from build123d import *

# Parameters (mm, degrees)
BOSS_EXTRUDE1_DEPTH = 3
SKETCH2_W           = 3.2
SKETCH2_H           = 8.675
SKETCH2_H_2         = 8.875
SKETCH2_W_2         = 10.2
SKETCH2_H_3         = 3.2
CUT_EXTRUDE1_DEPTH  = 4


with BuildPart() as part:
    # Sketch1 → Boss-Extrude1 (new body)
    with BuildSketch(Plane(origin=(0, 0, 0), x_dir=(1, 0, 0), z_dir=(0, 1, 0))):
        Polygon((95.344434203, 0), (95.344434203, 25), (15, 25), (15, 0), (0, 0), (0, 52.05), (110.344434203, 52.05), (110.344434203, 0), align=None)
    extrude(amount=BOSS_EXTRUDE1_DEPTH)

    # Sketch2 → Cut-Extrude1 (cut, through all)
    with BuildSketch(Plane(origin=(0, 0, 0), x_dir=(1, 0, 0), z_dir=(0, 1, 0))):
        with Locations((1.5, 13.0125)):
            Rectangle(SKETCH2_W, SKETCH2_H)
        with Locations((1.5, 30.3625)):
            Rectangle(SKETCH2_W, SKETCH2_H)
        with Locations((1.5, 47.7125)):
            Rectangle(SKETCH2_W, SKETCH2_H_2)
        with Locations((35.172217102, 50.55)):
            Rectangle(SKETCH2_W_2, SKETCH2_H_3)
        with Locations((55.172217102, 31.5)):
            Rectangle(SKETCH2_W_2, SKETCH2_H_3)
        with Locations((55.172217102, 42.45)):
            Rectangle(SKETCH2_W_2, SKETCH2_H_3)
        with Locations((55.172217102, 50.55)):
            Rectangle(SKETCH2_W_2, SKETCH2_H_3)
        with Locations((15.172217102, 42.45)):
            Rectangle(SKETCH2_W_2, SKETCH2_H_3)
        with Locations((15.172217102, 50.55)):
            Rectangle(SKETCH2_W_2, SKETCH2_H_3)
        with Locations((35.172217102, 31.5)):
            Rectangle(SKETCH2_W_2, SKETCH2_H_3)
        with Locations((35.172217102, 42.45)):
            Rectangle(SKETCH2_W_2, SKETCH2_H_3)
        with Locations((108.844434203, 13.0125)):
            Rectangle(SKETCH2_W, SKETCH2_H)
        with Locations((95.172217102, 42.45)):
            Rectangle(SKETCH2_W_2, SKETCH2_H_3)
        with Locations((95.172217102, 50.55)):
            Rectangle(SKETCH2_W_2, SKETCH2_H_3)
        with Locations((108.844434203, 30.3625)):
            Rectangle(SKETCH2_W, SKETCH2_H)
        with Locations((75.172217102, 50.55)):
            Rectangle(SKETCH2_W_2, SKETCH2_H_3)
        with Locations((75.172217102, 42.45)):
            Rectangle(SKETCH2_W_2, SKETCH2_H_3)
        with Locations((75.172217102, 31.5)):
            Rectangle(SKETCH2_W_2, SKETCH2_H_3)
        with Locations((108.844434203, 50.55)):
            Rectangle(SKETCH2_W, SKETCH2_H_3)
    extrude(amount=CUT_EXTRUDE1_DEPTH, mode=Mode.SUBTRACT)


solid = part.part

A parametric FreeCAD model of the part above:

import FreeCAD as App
import Part
import Sketcher

V = App.Vector
Q = App.Units.Quantity

doc = App.newDocument("Part")
body = doc.addObject("PartDesign::Body", "Body")

# Sketch on XZ plane
sketch1 = body.newObject("Sketcher::SketchObject", "Sketch")
sketch1.AttachmentSupport = (doc.getObject("XZ_Plane"), [""])
sketch1.MapMode = "FlatFace"
sketch1.addGeometry([
    Part.LineSegment(V(95, -25, 0), V(95, 0, 0)),  # 0
    Part.LineSegment(V(95, 0, 0), V(110, 0, 0)),  # 1
    Part.LineSegment(V(110, 0, 0), V(110, -52, 0)),  # 2
    Part.LineSegment(V(110, -52, 0), V(0, -52, 0)),  # 3
    Part.LineSegment(V(0, -52, 0), V(0, 0, 0)),  # 4
    Part.LineSegment(V(0, 0, 0), V(15, 0, 0)),  # 5
    Part.LineSegment(V(15, 0, 0), V(15, -25, 0)),  # 6
    Part.LineSegment(V(15, -25, 0), V(95, -25, 0)),  # 7
], False)
sketch1.addConstraint([
    Sketcher.Constraint("Coincident", 0, 2, 1, 1),
    Sketcher.Constraint("Coincident", 1, 2, 2, 1),
    Sketcher.Constraint("Coincident", 2, 2, 3, 1),
    Sketcher.Constraint("Coincident", 3, 2, 4, 1),
    Sketcher.Constraint("Coincident", 4, 2, 5, 1),
    Sketcher.Constraint("Coincident", 5, 2, 6, 1),
    Sketcher.Constraint("Coincident", 6, 2, 7, 1),
    Sketcher.Constraint("Coincident", 7, 2, 0, 1),
    Sketcher.Constraint("Vertical", 0),
    Sketcher.Constraint("Horizontal", 1),
    Sketcher.Constraint("Vertical", 2),
    Sketcher.Constraint("Horizontal", 3),
    Sketcher.Constraint("Vertical", 4),
    Sketcher.Constraint("Horizontal", 5),
    Sketcher.Constraint("Vertical", 6),
    Sketcher.Constraint("Horizontal", 7),
    Sketcher.Constraint("Coincident", 4, 2, -1, 1),
    Sketcher.Constraint("PointOnObject", 0, 2, -1),
    Sketcher.Constraint("Equal", 1, 5),
    Sketcher.Constraint("DistanceX", 1, 1, 1, 2, Q("15 mm")),
    Sketcher.Constraint("DistanceY", 0, 1, 0, 2, Q("25 mm")),
    Sketcher.Constraint("DistanceY", 2, 2, 2, 1, Q("52.05 mm")),
    Sketcher.Constraint("DistanceX", 3, 2, 3, 1, Q("110.344434 mm")),
])
pad1 = body.newObject("PartDesign::Pad", "Pad")
pad1.Profile = sketch1
pad1.Length = 3
pad1.Reversed = True

# Sketch on XZ plane
sketch2 = body.newObject("Sketcher::SketchObject", "Sketch001")
sketch2.AttachmentSupport = (doc.getObject("XZ_Plane"), [""])
sketch2.MapMode = "FlatFace"
sketch2.addGeometry([
    Part.LineSegment(V(-0.1, -17.4, 0), V(-0.1, -8.7, 0)),  # 0
    Part.LineSegment(V(-0.1, -8.7, 0), V(3.1, -8.7, 0)),  # 1
    Part.LineSegment(V(3.1, -8.7, 0), V(3.1, -17.4, 0)),  # 2
    Part.LineSegment(V(3.1, -17.4, 0), V(-0.1, -17.4, 0)),  # 3
    Part.LineSegment(V(-0.1, -34.7, 0), V(-0.1, -26, 0)),  # 4
    Part.LineSegment(V(-0.1, -26, 0), V(3.1, -26, 0)),  # 5
    Part.LineSegment(V(3.1, -26, 0), V(3.1, -34.7, 0)),  # 6
    Part.LineSegment(V(3.1, -34.7, 0), V(-0.1, -34.7, 0)),  # 7
    Part.LineSegment(V(-0.1, -52.1, 0), V(-0.1, -43.3, 0)),  # 8
    Part.LineSegment(V(-0.1, -43.3, 0), V(3.1, -43.3, 0)),  # 9
    Part.LineSegment(V(3.1, -43.3, 0), V(3.1, -52.1, 0)),  # 10
    Part.LineSegment(V(3.1, -52.1, 0), V(-0.1, -52.1, 0)),  # 11
    Part.LineSegment(V(30.1, -52.1, 0), V(30.1, -49, 0)),  # 12
    Part.LineSegment(V(30.1, -49, 0), V(40.3, -49, 0)),  # 13
    Part.LineSegment(V(40.3, -49, 0), V(40.3, -52.1, 0)),  # 14
    Part.LineSegment(V(40.3, -52.1, 0), V(30.1, -52.1, 0)),  # 15
    Part.LineSegment(V(50.1, -33.1, 0), V(50.1, -29.9, 0)),  # 16
    Part.LineSegment(V(50.1, -29.9, 0), V(60.3, -29.9, 0)),  # 17
    Part.LineSegment(V(60.3, -29.9, 0), V(60.3, -33.1, 0)),  # 18
    Part.LineSegment(V(60.3, -33.1, 0), V(50.1, -33.1, 0)),  # 19
    Part.LineSegment(V(50.1, -44, 0), V(50.1, -40.9, 0)),  # 20
    Part.LineSegment(V(50.1, -40.9, 0), V(60.3, -40.9, 0)),  # 21
    Part.LineSegment(V(60.3, -40.9, 0), V(60.3, -44, 0)),  # 22
    Part.LineSegment(V(60.3, -44, 0), V(50.1, -44, 0)),  # 23
    Part.LineSegment(V(50.1, -52.1, 0), V(50.1, -49, 0)),  # 24
    Part.LineSegment(V(50.1, -49, 0), V(60.3, -49, 0)),  # 25
    Part.LineSegment(V(60.3, -49, 0), V(60.3, -52.1, 0)),  # 26
    Part.LineSegment(V(60.3, -52.1, 0), V(50.1, -52.1, 0)),  # 27
    Part.LineSegment(V(10.1, -44, 0), V(10.1, -40.9, 0)),  # 28
    Part.LineSegment(V(10.1, -40.9, 0), V(20.3, -40.9, 0)),  # 29
    Part.LineSegment(V(20.3, -40.9, 0), V(20.3, -44, 0)),  # 30
    Part.LineSegment(V(20.3, -44, 0), V(10.1, -44, 0)),  # 31
    Part.LineSegment(V(10.1, -52.1, 0), V(10.1, -49, 0)),  # 32
    Part.LineSegment(V(10.1, -49, 0), V(20.3, -49, 0)),  # 33
    Part.LineSegment(V(20.3, -49, 0), V(20.3, -52.1, 0)),  # 34
    Part.LineSegment(V(20.3, -52.1, 0), V(10.1, -52.1, 0)),  # 35
    Part.LineSegment(V(30.1, -33.1, 0), V(30.1, -29.9, 0)),  # 36
    Part.LineSegment(V(30.1, -29.9, 0), V(40.3, -29.9, 0)),  # 37
    Part.LineSegment(V(40.3, -29.9, 0), V(40.3, -33.1, 0)),  # 38
    Part.LineSegment(V(40.3, -33.1, 0), V(30.1, -33.1, 0)),  # 39
    Part.LineSegment(V(30.1, -44, 0), V(30.1, -40.9, 0)),  # 40
    Part.LineSegment(V(30.1, -40.9, 0), V(40.3, -40.9, 0)),  # 41
    Part.LineSegment(V(40.3, -40.9, 0), V(40.3, -44, 0)),  # 42
    Part.LineSegment(V(40.3, -44, 0), V(30.1, -44, 0)),  # 43
    Part.LineSegment(V(107.2, -17.4, 0), V(107.2, -8.7, 0)),  # 44
    Part.LineSegment(V(107.2, -8.7, 0), V(110.4, -8.7, 0)),  # 45
    Part.LineSegment(V(110.4, -8.7, 0), V(110.4, -17.4, 0)),  # 46
    Part.LineSegment(V(110.4, -17.4, 0), V(107.2, -17.4, 0)),  # 47
    Part.LineSegment(V(90.1, -44, 0), V(90.1, -40.9, 0)),  # 48
    Part.LineSegment(V(90.1, -40.9, 0), V(100.3, -40.9, 0)),  # 49
    Part.LineSegment(V(100.3, -40.9, 0), V(100.3, -44, 0)),  # 50
    Part.LineSegment(V(100.3, -44, 0), V(90.1, -44, 0)),  # 51
    Part.LineSegment(V(90.1, -52.1, 0), V(90.1, -49, 0)),  # 52
    Part.LineSegment(V(90.1, -49, 0), V(100.3, -49, 0)),  # 53
    Part.LineSegment(V(100.3, -49, 0), V(100.3, -52.1, 0)),  # 54
    Part.LineSegment(V(100.3, -52.1, 0), V(90.1, -52.1, 0)),  # 55
    Part.LineSegment(V(107.2, -34.7, 0), V(107.2, -26, 0)),  # 56
    Part.LineSegment(V(107.2, -26, 0), V(110.4, -26, 0)),  # 57
    Part.LineSegment(V(110.4, -26, 0), V(110.4, -34.7, 0)),  # 58
    Part.LineSegment(V(110.4, -34.7, 0), V(107.2, -34.7, 0)),  # 59
    Part.LineSegment(V(70.1, -52.1, 0), V(70.1, -49, 0)),  # 60
    Part.LineSegment(V(70.1, -49, 0), V(80.3, -49, 0)),  # 61
    Part.LineSegment(V(80.3, -49, 0), V(80.3, -52.1, 0)),  # 62
    Part.LineSegment(V(80.3, -52.1, 0), V(70.1, -52.1, 0)),  # 63
    Part.LineSegment(V(70.1, -44, 0), V(70.1, -40.9, 0)),  # 64
    Part.LineSegment(V(70.1, -40.9, 0), V(80.3, -40.9, 0)),  # 65
    Part.LineSegment(V(80.3, -40.9, 0), V(80.3, -44, 0)),  # 66
    Part.LineSegment(V(80.3, -44, 0), V(70.1, -44, 0)),  # 67
    Part.LineSegment(V(70.1, -33.1, 0), V(70.1, -29.9, 0)),  # 68
    Part.LineSegment(V(70.1, -29.9, 0), V(80.3, -29.9, 0)),  # 69
    Part.LineSegment(V(80.3, -29.9, 0), V(80.3, -33.1, 0)),  # 70
    Part.LineSegment(V(80.3, -33.1, 0), V(70.1, -33.1, 0)),  # 71
    Part.LineSegment(V(107.2, -52.1, 0), V(107.2, -49, 0)),  # 72
    Part.LineSegment(V(107.2, -49, 0), V(110.4, -49, 0)),  # 73
    Part.LineSegment(V(110.4, -49, 0), V(110.4, -52.1, 0)),  # 74
    Part.LineSegment(V(110.4, -52.1, 0), V(107.2, -52.1, 0)),  # 75
], False)
sketch2.addConstraint([
    Sketcher.Constraint("Coincident", 0, 2, 1, 1),
    Sketcher.Constraint("Coincident", 1, 2, 2, 1),
    Sketcher.Constraint("Coincident", 2, 2, 3, 1),
    Sketcher.Constraint("Coincident", 3, 2, 0, 1),
    Sketcher.Constraint("Coincident", 4, 2, 5, 1),
    Sketcher.Constraint("Coincident", 5, 2, 6, 1),
    Sketcher.Constraint("Coincident", 6, 2, 7, 1),
    Sketcher.Constraint("Coincident", 7, 2, 4, 1),
    Sketcher.Constraint("Coincident", 8, 2, 9, 1),
    Sketcher.Constraint("Coincident", 9, 2, 10, 1),
    Sketcher.Constraint("Coincident", 10, 2, 11, 1),
    Sketcher.Constraint("Coincident", 11, 2, 8, 1),
    Sketcher.Constraint("Coincident", 12, 2, 13, 1),
    Sketcher.Constraint("Coincident", 13, 2, 14, 1),
    Sketcher.Constraint("Coincident", 14, 2, 15, 1),
    Sketcher.Constraint("Coincident", 15, 2, 12, 1),
    Sketcher.Constraint("Coincident", 16, 2, 17, 1),
    Sketcher.Constraint("Coincident", 17, 2, 18, 1),
    Sketcher.Constraint("Coincident", 18, 2, 19, 1),
    Sketcher.Constraint("Coincident", 19, 2, 16, 1),
    Sketcher.Constraint("Coincident", 20, 2, 21, 1),
    Sketcher.Constraint("Coincident", 21, 2, 22, 1),
    Sketcher.Constraint("Coincident", 22, 2, 23, 1),
    Sketcher.Constraint("Coincident", 23, 2, 20, 1),
    Sketcher.Constraint("Coincident", 24, 2, 25, 1),
    Sketcher.Constraint("Coincident", 25, 2, 26, 1),
    Sketcher.Constraint("Coincident", 26, 2, 27, 1),
    Sketcher.Constraint("Coincident", 27, 2, 24, 1),
    Sketcher.Constraint("Coincident", 28, 2, 29, 1),
    Sketcher.Constraint("Coincident", 29, 2, 30, 1),
    Sketcher.Constraint("Coincident", 30, 2, 31, 1),
    Sketcher.Constraint("Coincident", 31, 2, 28, 1),
    Sketcher.Constraint("Coincident", 32, 2, 33, 1),
    Sketcher.Constraint("Coincident", 33, 2, 34, 1),
    Sketcher.Constraint("Coincident", 34, 2, 35, 1),
    Sketcher.Constraint("Coincident", 35, 2, 32, 1),
    Sketcher.Constraint("Coincident", 36, 2, 37, 1),
    Sketcher.Constraint("Coincident", 37, 2, 38, 1),
    Sketcher.Constraint("Coincident", 38, 2, 39, 1),
    Sketcher.Constraint("Coincident", 39, 2, 36, 1),
    Sketcher.Constraint("Coincident", 40, 2, 41, 1),
    Sketcher.Constraint("Coincident", 41, 2, 42, 1),
    Sketcher.Constraint("Coincident", 42, 2, 43, 1),
    Sketcher.Constraint("Coincident", 43, 2, 40, 1),
    Sketcher.Constraint("Coincident", 44, 2, 45, 1),
    Sketcher.Constraint("Coincident", 45, 2, 46, 1),
    Sketcher.Constraint("Coincident", 46, 2, 47, 1),
    Sketcher.Constraint("Coincident", 47, 2, 44, 1),
    Sketcher.Constraint("Coincident", 48, 2, 49, 1),
    Sketcher.Constraint("Coincident", 49, 2, 50, 1),
    Sketcher.Constraint("Coincident", 50, 2, 51, 1),
    Sketcher.Constraint("Coincident", 51, 2, 48, 1),
    Sketcher.Constraint("Coincident", 52, 2, 53, 1),
    Sketcher.Constraint("Coincident", 53, 2, 54, 1),
    Sketcher.Constraint("Coincident", 54, 2, 55, 1),
    Sketcher.Constraint("Coincident", 55, 2, 52, 1),
    Sketcher.Constraint("Coincident", 56, 2, 57, 1),
    Sketcher.Constraint("Coincident", 57, 2, 58, 1),
    Sketcher.Constraint("Coincident", 58, 2, 59, 1),
    Sketcher.Constraint("Coincident", 59, 2, 56, 1),
    Sketcher.Constraint("Coincident", 60, 2, 61, 1),
    Sketcher.Constraint("Coincident", 61, 2, 62, 1),
    Sketcher.Constraint("Coincident", 62, 2, 63, 1),
    Sketcher.Constraint("Coincident", 63, 2, 60, 1),
    Sketcher.Constraint("Coincident", 64, 2, 65, 1),
    Sketcher.Constraint("Coincident", 65, 2, 66, 1),
    Sketcher.Constraint("Coincident", 66, 2, 67, 1),
    Sketcher.Constraint("Coincident", 67, 2, 64, 1),
    Sketcher.Constraint("Coincident", 68, 2, 69, 1),
    Sketcher.Constraint("Coincident", 69, 2, 70, 1),
    Sketcher.Constraint("Coincident", 70, 2, 71, 1),
    Sketcher.Constraint("Coincident", 71, 2, 68, 1),
    Sketcher.Constraint("Coincident", 72, 2, 73, 1),
    Sketcher.Constraint("Coincident", 73, 2, 74, 1),
    Sketcher.Constraint("Coincident", 74, 2, 75, 1),
    Sketcher.Constraint("Coincident", 75, 2, 72, 1),
    Sketcher.Constraint("Vertical", 0),
    Sketcher.Constraint("Horizontal", 1),
    Sketcher.Constraint("Vertical", 2),
    Sketcher.Constraint("Horizontal", 3),
    Sketcher.Constraint("Vertical", 4),
    Sketcher.Constraint("Horizontal", 5),
    Sketcher.Constraint("Vertical", 6),
    Sketcher.Constraint("Horizontal", 7),
    Sketcher.Constraint("Vertical", 8),
    Sketcher.Constraint("Horizontal", 9),
    Sketcher.Constraint("Vertical", 10),
    Sketcher.Constraint("Horizontal", 11),
    Sketcher.Constraint("Vertical", 12),
    Sketcher.Constraint("Horizontal", 13),
    Sketcher.Constraint("Vertical", 14),
    Sketcher.Constraint("Horizontal", 15),
    Sketcher.Constraint("Vertical", 16),
    Sketcher.Constraint("Horizontal", 17),
    Sketcher.Constraint("Vertical", 18),
    Sketcher.Constraint("Horizontal", 19),
    Sketcher.Constraint("Vertical", 20),
    Sketcher.Constraint("Horizontal", 21),
    Sketcher.Constraint("Vertical", 22),
    Sketcher.Constraint("Horizontal", 23),
    Sketcher.Constraint("Vertical", 24),
    Sketcher.Constraint("Horizontal", 25),
    Sketcher.Constraint("Vertical", 26),
    Sketcher.Constraint("Horizontal", 27),
    Sketcher.Constraint("Vertical", 28),
    Sketcher.Constraint("Horizontal", 29),
    Sketcher.Constraint("Vertical", 30),
    Sketcher.Constraint("Horizontal", 31),
    Sketcher.Constraint("Vertical", 32),
    Sketcher.Constraint("Horizontal", 33),
    Sketcher.Constraint("Vertical", 34),
    Sketcher.Constraint("Horizontal", 35),
    Sketcher.Constraint("Vertical", 36),
    Sketcher.Constraint("Horizontal", 37),
    Sketcher.Constraint("Vertical", 38),
    Sketcher.Constraint("Horizontal", 39),
    Sketcher.Constraint("Vertical", 40),
    Sketcher.Constraint("Horizontal", 41),
    Sketcher.Constraint("Vertical", 42),
    Sketcher.Constraint("Horizontal", 43),
    Sketcher.Constraint("Vertical", 44),
    Sketcher.Constraint("Horizontal", 45),
    Sketcher.Constraint("Vertical", 46),
    Sketcher.Constraint("Horizontal", 47),
    Sketcher.Constraint("Vertical", 48),
    Sketcher.Constraint("Horizontal", 49),
    Sketcher.Constraint("Vertical", 50),
    Sketcher.Constraint("Horizontal", 51),
    Sketcher.Constraint("Vertical", 52),
    Sketcher.Constraint("Horizontal", 53),
    Sketcher.Constraint("Vertical", 54),
    Sketcher.Constraint("Horizontal", 55),
    Sketcher.Constraint("Vertical", 56),
    Sketcher.Constraint("Horizontal", 57),
    Sketcher.Constraint("Vertical", 58),
    Sketcher.Constraint("Horizontal", 59),
    Sketcher.Constraint("Vertical", 60),
    Sketcher.Constraint("Horizontal", 61),
    Sketcher.Constraint("Vertical", 62),
    Sketcher.Constraint("Horizontal", 63),
    Sketcher.Constraint("Vertical", 64),
    Sketcher.Constraint("Horizontal", 65),
    Sketcher.Constraint("Vertical", 66),
    Sketcher.Constraint("Horizontal", 67),
    Sketcher.Constraint("Vertical", 68),
    Sketcher.Constraint("Horizontal", 69),
    Sketcher.Constraint("Vertical", 70),
    Sketcher.Constraint("Horizontal", 71),
    Sketcher.Constraint("Vertical", 72),
    Sketcher.Constraint("Horizontal", 73),
    Sketcher.Constraint("Vertical", 74),
    Sketcher.Constraint("Horizontal", 75),
    Sketcher.Constraint("Horizontal", 11, 2, 14, 2),
    Sketcher.Constraint("Horizontal", 13, 2, 24, 2),
    Sketcher.Constraint("Horizontal", 15, 2, 26, 2),
    Sketcher.Constraint("Horizontal", 21, 2, 28, 2),
    Sketcher.Constraint("Horizontal", 23, 2, 30, 2),
    Sketcher.Constraint("Horizontal", 25, 2, 32, 2),
    Sketcher.Constraint("Horizontal", 27, 2, 34, 2),
    Sketcher.Constraint("Horizontal", 17, 2, 36, 2),
    Sketcher.Constraint("Horizontal", 19, 2, 38, 2),
    Sketcher.Constraint("Horizontal", 29, 2, 40, 2),
    Sketcher.Constraint("Horizontal", 31, 2, 42, 2),
    Sketcher.Constraint("Horizontal", 1, 2, 44, 2),
    Sketcher.Constraint("Horizontal", 3, 2, 46, 2),
    Sketcher.Constraint("Horizontal", 41, 2, 48, 2),
    Sketcher.Constraint("Horizontal", 43, 2, 50, 2),
    Sketcher.Constraint("Horizontal", 33, 2, 52, 2),
    Sketcher.Constraint("Horizontal", 35, 2, 54, 2),
    Sketcher.Constraint("Horizontal", 5, 2, 56, 2),
    Sketcher.Constraint("Horizontal", 7, 2, 58, 2),
    Sketcher.Constraint("Horizontal", 53, 2, 60, 2),
    Sketcher.Constraint("Horizontal", 55, 2, 62, 2),
    Sketcher.Constraint("Horizontal", 49, 2, 64, 2),
    Sketcher.Constraint("Horizontal", 51, 2, 66, 2),
    Sketcher.Constraint("Horizontal", 37, 2, 68, 2),
    Sketcher.Constraint("Horizontal", 39, 2, 70, 2),
    Sketcher.Constraint("Horizontal", 61, 2, 72, 2),
    Sketcher.Constraint("Horizontal", 63, 2, 74, 2),
    Sketcher.Constraint("Vertical", 3, 2, 4, 2),
    Sketcher.Constraint("Vertical", 2, 2, 5, 2),
    Sketcher.Constraint("Vertical", 7, 2, 8, 2),
    Sketcher.Constraint("Vertical", 6, 2, 9, 2),
    Sketcher.Constraint("Vertical", 19, 2, 20, 2),
    Sketcher.Constraint("Vertical", 18, 2, 21, 2),
    Sketcher.Constraint("Vertical", 23, 2, 24, 2),
    Sketcher.Constraint("Vertical", 22, 2, 25, 2),
    Sketcher.Constraint("Vertical", 31, 2, 32, 2),
    Sketcher.Constraint("Vertical", 30, 2, 33, 2),
    Sketcher.Constraint("Vertical", 15, 2, 36, 2),
    Sketcher.Constraint("Vertical", 14, 2, 37, 2),
    Sketcher.Constraint("Vertical", 39, 2, 40, 2),
    Sketcher.Constraint("Vertical", 38, 2, 41, 2),
    Sketcher.Constraint("Vertical", 51, 2, 52, 2),
    Sketcher.Constraint("Vertical", 50, 2, 53, 2),
    Sketcher.Constraint("Vertical", 47, 2, 56, 2),
    Sketcher.Constraint("Vertical", 46, 2, 57, 2),
    Sketcher.Constraint("Vertical", 63, 2, 64, 2),
    Sketcher.Constraint("Vertical", 62, 2, 65, 2),
    Sketcher.Constraint("Vertical", 67, 2, 68, 2),
    Sketcher.Constraint("Vertical", 66, 2, 69, 2),
    Sketcher.Constraint("Vertical", 59, 2, 72, 2),
    Sketcher.Constraint("Vertical", 58, 2, 73, 2),
    Sketcher.Constraint("Equal", 15, 17),
    Sketcher.Constraint("Equal", 27, 29),
    Sketcher.Constraint("Equal", 11, 45),
    Sketcher.Constraint("Equal", 43, 49),
    Sketcher.Constraint("Equal", 55, 61),
    Sketcher.Constraint("Equal", 2, 4),
    Sketcher.Constraint("Equal", 75, 12),
    Sketcher.Constraint("Equal", 14, 16),
    Sketcher.Constraint("Equal", 18, 20),
    Sketcher.Constraint("DistanceX", 1, 1, 1, 2, Q("3.2 mm")),
    Sketcher.Constraint("DistanceX", 13, 1, 13, 2, Q("10.2 mm")),
    Sketcher.Constraint("DistanceX", 0, 2, -1, 1, Q("0.1 mm")),
    Sketcher.Constraint("DistanceY", 6, 2, -1, 1, Q("34.7 mm")),
    Sketcher.Constraint("DistanceY", 16, 2, -1, 1, Q("29.9 mm")),
    Sketcher.Constraint("DistanceY", 0, 1, 0, 2, Q("8.675 mm")),
    Sketcher.Constraint("DistanceY", 8, 1, 8, 2, Q("8.875 mm")),
    Sketcher.Constraint("DistanceY", 2, 2, -1, 1, Q("17.35 mm")),
    Sketcher.Constraint("DistanceY", 10, 2, -1, 1, Q("52.15 mm")),
    Sketcher.Constraint("DistanceY", 20, 2, -1, 1, Q("40.85 mm")),
    Sketcher.Constraint("DistanceX", -1, 1, 12, 2, Q("30.072217 mm")),
    Sketcher.Constraint("DistanceX", -1, 1, 16, 2, Q("50.072217 mm")),
    Sketcher.Constraint("DistanceX", -1, 1, 28, 2, Q("10.072217 mm")),
    Sketcher.Constraint("DistanceX", -1, 1, 44, 2, Q("107.244434 mm")),
    Sketcher.Constraint("DistanceX", -1, 1, 48, 2, Q("90.072217 mm")),
    Sketcher.Constraint("DistanceX", -1, 1, 60, 2, Q("70.072217 mm")),
])
pocket1 = body.newObject("PartDesign::Pocket", "Pocket")
pocket1.Profile = sketch2
pocket1.Type = "ThroughAll"

doc.recompute()
